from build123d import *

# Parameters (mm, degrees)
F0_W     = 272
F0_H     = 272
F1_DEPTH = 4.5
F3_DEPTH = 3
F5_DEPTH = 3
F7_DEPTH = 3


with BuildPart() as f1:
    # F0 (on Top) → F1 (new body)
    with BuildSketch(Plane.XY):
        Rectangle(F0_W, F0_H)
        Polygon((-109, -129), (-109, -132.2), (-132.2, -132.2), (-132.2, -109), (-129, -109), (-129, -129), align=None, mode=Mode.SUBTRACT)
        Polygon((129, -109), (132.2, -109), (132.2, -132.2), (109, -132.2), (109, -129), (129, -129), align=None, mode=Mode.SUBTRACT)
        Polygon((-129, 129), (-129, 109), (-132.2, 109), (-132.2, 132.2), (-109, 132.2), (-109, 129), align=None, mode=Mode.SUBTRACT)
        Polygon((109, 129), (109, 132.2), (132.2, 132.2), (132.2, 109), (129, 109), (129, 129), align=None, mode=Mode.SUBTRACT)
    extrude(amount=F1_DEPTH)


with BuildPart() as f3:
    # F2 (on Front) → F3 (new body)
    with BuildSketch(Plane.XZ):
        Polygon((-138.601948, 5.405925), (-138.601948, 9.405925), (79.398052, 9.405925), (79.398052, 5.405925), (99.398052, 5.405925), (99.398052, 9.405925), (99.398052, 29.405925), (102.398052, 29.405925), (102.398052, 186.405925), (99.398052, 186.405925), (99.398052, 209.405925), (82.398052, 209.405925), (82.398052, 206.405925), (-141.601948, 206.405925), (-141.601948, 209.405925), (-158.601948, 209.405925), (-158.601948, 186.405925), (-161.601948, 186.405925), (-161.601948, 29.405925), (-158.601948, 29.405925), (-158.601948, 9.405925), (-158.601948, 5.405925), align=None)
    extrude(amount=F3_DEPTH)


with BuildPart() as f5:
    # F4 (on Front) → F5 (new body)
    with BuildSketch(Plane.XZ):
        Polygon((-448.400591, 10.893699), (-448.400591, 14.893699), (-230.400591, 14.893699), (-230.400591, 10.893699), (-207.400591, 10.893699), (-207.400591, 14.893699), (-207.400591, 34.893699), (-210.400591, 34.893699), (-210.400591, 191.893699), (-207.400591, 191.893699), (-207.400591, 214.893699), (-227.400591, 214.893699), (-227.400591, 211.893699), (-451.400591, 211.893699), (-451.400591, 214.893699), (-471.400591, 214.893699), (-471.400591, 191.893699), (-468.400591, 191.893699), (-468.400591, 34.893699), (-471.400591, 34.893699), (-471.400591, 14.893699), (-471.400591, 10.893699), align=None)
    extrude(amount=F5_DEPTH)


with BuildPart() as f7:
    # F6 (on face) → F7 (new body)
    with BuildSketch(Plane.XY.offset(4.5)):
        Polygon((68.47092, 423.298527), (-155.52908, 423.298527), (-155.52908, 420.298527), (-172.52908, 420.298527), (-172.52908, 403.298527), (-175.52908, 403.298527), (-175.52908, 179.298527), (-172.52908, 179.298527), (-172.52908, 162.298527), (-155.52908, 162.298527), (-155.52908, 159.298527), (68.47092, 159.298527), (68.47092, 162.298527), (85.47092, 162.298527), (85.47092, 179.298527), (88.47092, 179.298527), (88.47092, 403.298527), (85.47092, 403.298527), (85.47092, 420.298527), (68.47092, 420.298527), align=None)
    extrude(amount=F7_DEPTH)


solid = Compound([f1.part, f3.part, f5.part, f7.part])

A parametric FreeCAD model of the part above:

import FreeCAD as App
import Part
import Sketcher


def add_polygon(sketch, points):
    """Adds a closed chain of lines whose ends are joined by coincident constraints."""
    first, n = sketch.GeometryCount, len(points)
    for a, b in zip(points, points[1:] + points[:1]):
        sketch.addGeometry(Part.LineSegment(App.Vector(*a, 0), App.Vector(*b, 0)), False)
    for i in range(n):
        sketch.addConstraint(Sketcher.Constraint("Coincident", first + i, 2, first + (i + 1) % n, 1))

doc = App.newDocument("Part")
params = doc.addObject("Spreadsheet::Sheet", "Params")
for row, (alias, value) in enumerate([
    ("sketch1_width", "272 mm"),
    ("sketch1_width2", "20 mm"),
    ("sketch1_width3", "23.2 mm"),
    ("pad1_length", "4.5 mm"),
    ("sketch2_width", "218 mm"),
    ("sketch2_width2", "20 mm"),
    ("sketch2_width3", "3 mm"),
    ("sketch2_width4", "17 mm"),
    ("sketch2_height", "4 mm"),
    ("pad2_length", "3 mm"),
    ("sketch3_width", "218 mm"),
    ("sketch3_width2", "23 mm"),
    ("sketch3_width3", "3 mm"),
    ("sketch3_width4", "20 mm"),
    ("sketch3_height", "4 mm"),
    ("pad3_length", "3 mm"),
    ("sketch4_width", "224 mm"),
    ("sketch4_width2", "17 mm"),
    ("sketch4_width3", "3 mm"),
    ("pad4_length", "3 mm"),
], start=1):
    params.set(f"A{row}", alias)
    params.set(f"B{row}", "=" + value)
    params.setAlias(f"B{row}", alias)

body = doc.addObject("PartDesign::Body", "Body")

sketch1 = body.newObject("Sketcher::SketchObject", "Sketch")
sketch1.AttachmentSupport = (doc.getObject("XY_Plane"), [""])
sketch1.MapMode = "FlatFace"
add_polygon(sketch1, [(-136, 136), (-136, -136), (136, -136), (136, 136)])
add_polygon(sketch1, [(-129, -129), (-109, -129), (-109, -132.2), (-132.2, -132.2), (-132.2, -109), (-129, -109)])
add_polygon(sketch1, [(129, -129), (129, -109), (132.2, -109), (132.2, -132.2), (109, -132.2), (109, -129)])
add_polygon(sketch1, [(-109, 129), (-129, 129), (-129, 109), (-132.2, 109), (-132.2, 132.2), (-109, 132.2)])
add_polygon(sketch1, [(129, 129), (109, 129), (109, 132.2), (132.2, 132.2), (132.2, 109), (129, 109)])
sketch1.addConstraint([
    Sketcher.Constraint("Vertical", 0),
    Sketcher.Constraint("Horizontal", 1),
    Sketcher.Constraint("Vertical", 2),
    Sketcher.Constraint("Horizontal", 3),
    Sketcher.Constraint("Horizontal", 4),
    Sketcher.Constraint("Vertical", 5),
    Sketcher.Constraint("Horizontal", 6),
    Sketcher.Constraint("Vertical", 7),
    Sketcher.Constraint("Horizontal", 8),
    Sketcher.Constraint("Vertical", 9),
    Sketcher.Constraint("Vertical", 10),
    Sketcher.Constraint("Horizontal", 11),
    Sketcher.Constraint("Vertical", 12),
    Sketcher.Constraint("Horizontal", 13),
    Sketcher.Constraint("Vertical", 14),
    Sketcher.Constraint("Horizontal", 15),
    Sketcher.Constraint("Horizontal", 16),
    Sketcher.Constraint("Vertical", 17),
    Sketcher.Constraint("Horizontal", 18),
    Sketcher.Constraint("Vertical", 19),
    Sketcher.Constraint("Horizontal", 20),
    Sketcher.Constraint("Vertical", 21),
    Sketcher.Constraint("Horizontal", 22),
    Sketcher.Constraint("Vertical", 23),
    Sketcher.Constraint("Horizontal", 24),
    Sketcher.Constraint("Vertical", 25),
    Sketcher.Constraint("Horizontal", 26),
    Sketcher.Constraint("Vertical", 27),
    Sketcher.Constraint("Symmetric", 0, 2, 2, 2, -1, 1),
    Sketcher.Constraint("Symmetric", 15, 2, 16, 2, -1, 1),
    Sketcher.Constraint("Symmetric", 11, 2, 18, 2, -1, 1),
    Sketcher.Constraint("Symmetric", 13, 2, 20, 2, -1, 1),
    Sketcher.Constraint("Symmetric", 4, 2, 22, 2, -1, 1),
    Sketcher.Constraint("Symmetric", 6, 2, 24, 2, -1, 1),
    Sketcher.Constraint("Symmetric", 8, 2, 26, 2, -1, 1),
    Sketcher.Constraint("Symmetric", 8, 2, 10, 2, -2),
    Sketcher.Constraint("Symmetric", 6, 2, 12, 2, -2),
    Sketcher.Constraint("Symmetric", 4, 2, 14, 2, -2),
    Sketcher.Constraint("Equal", 3, 0),
    Sketcher.Constraint("Equal", 26, 5),
    Sketcher.Constraint("Equal", 24, 7),
    Sketcher.Constraint("DistanceX", 1, 1, 1, 2, 272.0),
    Sketcher.Constraint("DistanceX", 4, 1, 4, 2, 20.0),
    Sketcher.Constraint("DistanceX", 6, 2, 6, 1, 23.2),
    Sketcher.Constraint("DistanceX", 4, 2, -1, 1, 109.0),
    Sketcher.Constraint("DistanceY", 4, 2, -1, 1, 129.0),
])
sketch1.setExpression("Constraints[69]", "Params.sketch1_width")
sketch1.setExpression("Constraints[70]", "Params.sketch1_width2")
sketch1.setExpression("Constraints[71]", "Params.sketch1_width3")
pad1 = body.newObject("PartDesign::Pad", "Pad")
pad1.Profile = sketch1
pad1.setExpression("Length", "Params.pad1_length")
body2 = doc.addObject("PartDesign::Body", "Body001")

sketch2 = body2.newObject("Sketcher::SketchObject", "Sketch001")
sketch2.AttachmentSupport = (doc.getObject("XZ_Plane001"), [""])
sketch2.MapMode = "FlatFace"
add_polygon(sketch2, [(-138.601948, 5.405925), (-138.601948, 9.405925), (79.398052, 9.405925), (79.398052, 5.405925), (99.398052, 5.405925), (99.398052, 29.405925), (102.398052, 29.405925), (102.398052, 186.405925), (99.398052, 186.405925), (99.398052, 209.405925), (82.398052, 209.405925), (82.398052, 206.405925), (-141.601948, 206.405925), (-141.601948, 209.405925), (-158.601948, 209.405925), (-158.601948, 186.405925), (-161.601948, 186.405925), (-161.601948, 29.405925), (-158.601948, 29.405925), (-158.601948, 5.405925)])
sketch2.addConstraint([
    Sketcher.Constraint("Vertical", 0),
    Sketcher.Constraint("Horizontal", 1),
    Sketcher.Constraint("Vertical", 2),
    Sketcher.Constraint("Horizontal", 3),
    Sketcher.Constraint("Vertical", 4),
    Sketcher.Constraint("Horizontal", 5),
    Sketcher.Constraint("Vertical", 6),
    Sketcher.Constraint("Horizontal", 7),
    Sketcher.Constraint("Vertical", 8),
    Sketcher.Constraint("Horizontal", 9),
    Sketcher.Constraint("Vertical", 10),
    Sketcher.Constraint("Horizontal", 11),
    Sketcher.Constraint("Vertical", 12),
    Sketcher.Constraint("Horizontal", 13),
    Sketcher.Constraint("Vertical", 14),
    Sketcher.Constraint("Horizontal", 15),
    Sketcher.Constraint("Vertical", 16),
    Sketcher.Constraint("Horizontal", 17),
    Sketcher.Constraint("Vertical", 18),
    Sketcher.Constraint("Horizontal", 19),
    Sketcher.Constraint("Horizontal", 9, 2, 12, 2),
    Sketcher.Constraint("Horizontal", 7, 2, 14, 2),
    Sketcher.Constraint("Horizontal", 5, 2, 16, 2),
    Sketcher.Constraint("Horizontal", 3, 2, 18, 2),
    Sketcher.Constraint("Vertical", 4, 2, 7, 2),
    Sketcher.Constraint("Vertical", 14, 2, 17, 2),
    Sketcher.Constraint("Equal", 9, 13),
    Sketcher.Constraint("Equal", 7, 15),
    Sketcher.Constraint("Equal", 3, 19),
    Sketcher.Constraint("Equal", 17, 10),
    Sketcher.Constraint("DistanceX", 1, 1, 1, 2, 218.0),
    Sketcher.Constraint("DistanceX", 3, 1, 3, 2, 20.0),
    Sketcher.Constraint("DistanceX", 5, 1, 5, 2, 3.0),
    Sketcher.Constraint("DistanceX", 9, 2, 9, 1, 17.0),
    Sketcher.Constraint("DistanceY", 0, 1, 0, 2, 4.0),
    Sketcher.Constraint("DistanceY", 4, 1, 4, 2, 24.0),
    Sketcher.Constraint("DistanceY", 6, 1, 6, 2, 157.0),
    Sketcher.Constraint("DistanceY", 8, 1, 8, 2, 23.0),
    Sketcher.Constraint("DistanceX", 0, 2, -1, 1, 138.601948),
    Sketcher.Constraint("DistanceY", -1, 1, 0, 2, 9.405925),
])
sketch2.setExpression("Constraints[50]", "Params.sketch2_width")
sketch2.setExpression("Constraints[51]", "Params.sketch2_width2")
sketch2.setExpression("Constraints[52]", "Params.sketch2_width3")
sketch2.setExpression("Constraints[53]", "Params.sketch2_width4")
sketch2.setExpression("Constraints[54]", "Params.sketch2_height")
pad2 = body2.newObject("PartDesign::Pad", "Pad001")
pad2.Profile = sketch2
pad2.setExpression("Length", "Params.pad2_length")
body3 = doc.addObject("PartDesign::Body", "Body002")

sketch3 = body3.newObject("Sketcher::SketchObject", "Sketch002")
sketch3.AttachmentSupport = (doc.getObject("XZ_Plane002"), [""])
sketch3.MapMode = "FlatFace"
add_polygon(sketch3, [(-448.400591, 10.893699), (-448.400591, 14.893699), (-230.400591, 14.893699), (-230.400591, 10.893699), (-207.400591, 10.893699), (-207.400591, 34.893699), (-210.400591, 34.893699), (-210.400591, 191.893699), (-207.400591, 191.893699), (-207.400591, 214.893699), (-227.400591, 214.893699), (-227.400591, 211.893699), (-451.400591, 211.893699), (-451.400591, 214.893699), (-471.400591, 214.893699), (-471.400591, 191.893699), (-468.400591, 191.893699), (-468.400591, 34.893699), (-471.400591, 34.893699), (-471.400591, 10.893699)])
sketch3.addConstraint([
    Sketcher.Constraint("Vertical", 0),
    Sketcher.Constraint("Horizontal", 1),
    Sketcher.Constraint("Vertical", 2),
    Sketcher.Constraint("Horizontal", 3),
    Sketcher.Constraint("Vertical", 4),
    Sketcher.Constraint("Horizontal", 5),
    Sketcher.Constraint("Vertical", 6),
    Sketcher.Constraint("Horizontal", 7),
    Sketcher.Constraint("Vertical", 8),
    Sketcher.Constraint("Horizontal", 9),
    Sketcher.Constraint("Vertical", 10),
    Sketcher.Constraint("Horizontal", 11),
    Sketcher.Constraint("Vertical", 12),
    Sketcher.Constraint("Horizontal", 13),
    Sketcher.Constraint("Vertical", 14),
    Sketcher.Constraint("Horizontal", 15),
    Sketcher.Constraint("Vertical", 16),
    Sketcher.Constraint("Horizontal", 17),
    Sketcher.Constraint("Vertical", 18),
    Sketcher.Constraint("Horizontal", 19),
    Sketcher.Constraint("Horizontal", 9, 2, 12, 2),
    Sketcher.Constraint("Horizontal", 7, 2, 14, 2),
    Sketcher.Constraint("Horizontal", 5, 2, 16, 2),
    Sketcher.Constraint("Horizontal", 3, 2, 18, 2),
    Sketcher.Constraint("Vertical", 4, 2, 7, 2),
    Sketcher.Constraint("Vertical", 14, 2, 17, 2),
    Sketcher.Constraint("Equal", 9, 13),
    Sketcher.Constraint("Equal", 7, 15),
    Sketcher.Constraint("Equal", 3, 19),
    Sketcher.Constraint("Equal", 19, 8),
    Sketcher.Constraint("Equal", 17, 10),
    Sketcher.Constraint("DistanceX", 1, 1, 1, 2, 218.0),
    Sketcher.Constraint("DistanceX", 3, 1, 3, 2, 23.0),
    Sketcher.Constraint("DistanceX", 5, 2, 5, 1, 3.0),
    Sketcher.Constraint("DistanceX", 9, 2, 9, 1, 20.0),
    Sketcher.Constraint("DistanceY", 0, 1, 0, 2, 4.0),
    Sketcher.Constraint("DistanceY", 4, 1, 4, 2, 24.0),
    Sketcher.Constraint("DistanceY", 6, 1, 6, 2, 157.0),
    Sketcher.Constraint("DistanceY", -1, 1, 0, 2, 14.893699),
    Sketcher.Constraint("DistanceX", 0, 2, -1, 1, 448.400591),
])
sketch3.setExpression("Constraints[51]", "Params.sketch3_width")
sketch3.setExpression("Constraints[52]", "Params.sketch3_width2")
sketch3.setExpression("Constraints[53]", "Params.sketch3_width3")
sketch3.setExpression("Constraints[54]", "Params.sketch3_width4")
sketch3.setExpression("Constraints[55]", "Params.sketch3_height")
pad3 = body3.newObject("PartDesign::Pad", "Pad002")
pad3.Profile = sketch3
pad3.setExpression("Length", "Params.pad3_length")
body4 = doc.addObject("PartDesign::Body", "Body003")

sketch4 = body4.newObject("Sketcher::SketchObject", "Sketch003")
sketch4.AttachmentSupport = (doc.getObject("XY_Plane003"), [""])
sketch4.MapMode = "FlatFace"
sketch4.AttachmentOffset = App.Placement(App.Vector(0, 0, 4.5), App.Rotation())
add_polygon(sketch4, [(68.47092, 423.298527), (-155.52908, 423.298527), (-155.52908, 420.298527), (-172.52908, 420.298527), (-172.52908, 403.298527), (-175.52908, 403.298527), (-175.52908, 179.298527), (-172.52908, 179.298527), (-172.52908, 162.298527), (-155.52908, 162.298527), (-155.52908, 159.298527), (68.47092, 159.298527), (68.47092, 162.298527), (85.47092, 162.298527), (85.47092, 179.298527), (88.47092, 179.298527), (88.47092, 403.298527), (85.47092, 403.298527), (85.47092, 420.298527), (68.47092, 420.298527)])
sketch4.addConstraint([
    Sketcher.Constraint("Horizontal", 0),
    Sketcher.Constraint("Vertical", 1),
    Sketcher.Constraint("Horizontal", 2),
    Sketcher.Constraint("Vertical", 3),
    Sketcher.Constraint("Horizontal", 4),
    Sketcher.Constraint("Vertical", 5),
    Sketcher.Constraint("Horizontal", 6),
    Sketcher.Constraint("Vertical", 7),
    Sketcher.Constraint("Horizontal", 8),
    Sketcher.Constraint("Vertical", 9),
    Sketcher.Constraint("Horizontal", 10),
    Sketcher.Constraint("Vertical", 11),
    Sketcher.Constraint("Horizontal", 12),
    Sketcher.Constraint("Vertical", 13),
    Sketcher.Constraint("Horizontal", 14),
    Sketcher.Constraint("Vertical", 15),
    Sketcher.Constraint("Horizontal", 16),
    Sketcher.Constraint("Vertical", 17),
    Sketcher.Constraint("Horizontal", 18),
    Sketcher.Constraint("Vertical", 19),
    Sketcher.Constraint("Horizontal", 8, 2, 11, 2),
    Sketcher.Constraint("Horizontal", 6, 2, 13, 2),
    Sketcher.Constraint("Horizontal", 4, 2, 15, 2),
    Sketcher.Constraint("Horizontal", 2, 2, 17, 2),
    Sketcher.Constraint("Vertical", 3, 2, 6, 2),
    Sketcher.Constraint("Vertical", 1, 2, 8, 2),
    Sketcher.Constraint("Vertical", 13, 2, 16, 2),
    Sketcher.Constraint("Vertical", 11, 2, 18, 2),
    Sketcher.Constraint("Equal", 8, 12),
    Sketcher.Constraint("Equal", 6, 14),
    Sketcher.Constraint("Equal", 16, 1),
    Sketcher.Constraint("Equal", 18, 3),
    Sketcher.Constraint("Equal", 10, 5),
    Sketcher.Constraint("Equal", 3, 7),
    Sketcher.Constraint("Equal", 1, 9),
    Sketcher.Constraint("DistanceX", 0, 2, 0, 1, 224.0),
    Sketcher.Constraint("DistanceX", 2, 2, 2, 1, 17.0),
    Sketcher.Constraint("DistanceX", 4, 2, 4, 1, 3.0),
    Sketcher.Constraint("DistanceX", 0, 2, -1, 1, 155.52908),
    Sketcher.Constraint("DistanceY", -1, 1, 0, 2, 423.298527),
])
sketch4.setExpression("Constraints[55]", "Params.sketch4_width")
sketch4.setExpression("Constraints[56]", "Params.sketch4_width2")
sketch4.setExpression("Constraints[57]", "Params.sketch4_width3")
pad4 = body4.newObject("PartDesign::Pad", "Pad003")
pad4.Profile = sketch4
pad4.setExpression("Length", "Params.pad4_length")

doc.recompute()
